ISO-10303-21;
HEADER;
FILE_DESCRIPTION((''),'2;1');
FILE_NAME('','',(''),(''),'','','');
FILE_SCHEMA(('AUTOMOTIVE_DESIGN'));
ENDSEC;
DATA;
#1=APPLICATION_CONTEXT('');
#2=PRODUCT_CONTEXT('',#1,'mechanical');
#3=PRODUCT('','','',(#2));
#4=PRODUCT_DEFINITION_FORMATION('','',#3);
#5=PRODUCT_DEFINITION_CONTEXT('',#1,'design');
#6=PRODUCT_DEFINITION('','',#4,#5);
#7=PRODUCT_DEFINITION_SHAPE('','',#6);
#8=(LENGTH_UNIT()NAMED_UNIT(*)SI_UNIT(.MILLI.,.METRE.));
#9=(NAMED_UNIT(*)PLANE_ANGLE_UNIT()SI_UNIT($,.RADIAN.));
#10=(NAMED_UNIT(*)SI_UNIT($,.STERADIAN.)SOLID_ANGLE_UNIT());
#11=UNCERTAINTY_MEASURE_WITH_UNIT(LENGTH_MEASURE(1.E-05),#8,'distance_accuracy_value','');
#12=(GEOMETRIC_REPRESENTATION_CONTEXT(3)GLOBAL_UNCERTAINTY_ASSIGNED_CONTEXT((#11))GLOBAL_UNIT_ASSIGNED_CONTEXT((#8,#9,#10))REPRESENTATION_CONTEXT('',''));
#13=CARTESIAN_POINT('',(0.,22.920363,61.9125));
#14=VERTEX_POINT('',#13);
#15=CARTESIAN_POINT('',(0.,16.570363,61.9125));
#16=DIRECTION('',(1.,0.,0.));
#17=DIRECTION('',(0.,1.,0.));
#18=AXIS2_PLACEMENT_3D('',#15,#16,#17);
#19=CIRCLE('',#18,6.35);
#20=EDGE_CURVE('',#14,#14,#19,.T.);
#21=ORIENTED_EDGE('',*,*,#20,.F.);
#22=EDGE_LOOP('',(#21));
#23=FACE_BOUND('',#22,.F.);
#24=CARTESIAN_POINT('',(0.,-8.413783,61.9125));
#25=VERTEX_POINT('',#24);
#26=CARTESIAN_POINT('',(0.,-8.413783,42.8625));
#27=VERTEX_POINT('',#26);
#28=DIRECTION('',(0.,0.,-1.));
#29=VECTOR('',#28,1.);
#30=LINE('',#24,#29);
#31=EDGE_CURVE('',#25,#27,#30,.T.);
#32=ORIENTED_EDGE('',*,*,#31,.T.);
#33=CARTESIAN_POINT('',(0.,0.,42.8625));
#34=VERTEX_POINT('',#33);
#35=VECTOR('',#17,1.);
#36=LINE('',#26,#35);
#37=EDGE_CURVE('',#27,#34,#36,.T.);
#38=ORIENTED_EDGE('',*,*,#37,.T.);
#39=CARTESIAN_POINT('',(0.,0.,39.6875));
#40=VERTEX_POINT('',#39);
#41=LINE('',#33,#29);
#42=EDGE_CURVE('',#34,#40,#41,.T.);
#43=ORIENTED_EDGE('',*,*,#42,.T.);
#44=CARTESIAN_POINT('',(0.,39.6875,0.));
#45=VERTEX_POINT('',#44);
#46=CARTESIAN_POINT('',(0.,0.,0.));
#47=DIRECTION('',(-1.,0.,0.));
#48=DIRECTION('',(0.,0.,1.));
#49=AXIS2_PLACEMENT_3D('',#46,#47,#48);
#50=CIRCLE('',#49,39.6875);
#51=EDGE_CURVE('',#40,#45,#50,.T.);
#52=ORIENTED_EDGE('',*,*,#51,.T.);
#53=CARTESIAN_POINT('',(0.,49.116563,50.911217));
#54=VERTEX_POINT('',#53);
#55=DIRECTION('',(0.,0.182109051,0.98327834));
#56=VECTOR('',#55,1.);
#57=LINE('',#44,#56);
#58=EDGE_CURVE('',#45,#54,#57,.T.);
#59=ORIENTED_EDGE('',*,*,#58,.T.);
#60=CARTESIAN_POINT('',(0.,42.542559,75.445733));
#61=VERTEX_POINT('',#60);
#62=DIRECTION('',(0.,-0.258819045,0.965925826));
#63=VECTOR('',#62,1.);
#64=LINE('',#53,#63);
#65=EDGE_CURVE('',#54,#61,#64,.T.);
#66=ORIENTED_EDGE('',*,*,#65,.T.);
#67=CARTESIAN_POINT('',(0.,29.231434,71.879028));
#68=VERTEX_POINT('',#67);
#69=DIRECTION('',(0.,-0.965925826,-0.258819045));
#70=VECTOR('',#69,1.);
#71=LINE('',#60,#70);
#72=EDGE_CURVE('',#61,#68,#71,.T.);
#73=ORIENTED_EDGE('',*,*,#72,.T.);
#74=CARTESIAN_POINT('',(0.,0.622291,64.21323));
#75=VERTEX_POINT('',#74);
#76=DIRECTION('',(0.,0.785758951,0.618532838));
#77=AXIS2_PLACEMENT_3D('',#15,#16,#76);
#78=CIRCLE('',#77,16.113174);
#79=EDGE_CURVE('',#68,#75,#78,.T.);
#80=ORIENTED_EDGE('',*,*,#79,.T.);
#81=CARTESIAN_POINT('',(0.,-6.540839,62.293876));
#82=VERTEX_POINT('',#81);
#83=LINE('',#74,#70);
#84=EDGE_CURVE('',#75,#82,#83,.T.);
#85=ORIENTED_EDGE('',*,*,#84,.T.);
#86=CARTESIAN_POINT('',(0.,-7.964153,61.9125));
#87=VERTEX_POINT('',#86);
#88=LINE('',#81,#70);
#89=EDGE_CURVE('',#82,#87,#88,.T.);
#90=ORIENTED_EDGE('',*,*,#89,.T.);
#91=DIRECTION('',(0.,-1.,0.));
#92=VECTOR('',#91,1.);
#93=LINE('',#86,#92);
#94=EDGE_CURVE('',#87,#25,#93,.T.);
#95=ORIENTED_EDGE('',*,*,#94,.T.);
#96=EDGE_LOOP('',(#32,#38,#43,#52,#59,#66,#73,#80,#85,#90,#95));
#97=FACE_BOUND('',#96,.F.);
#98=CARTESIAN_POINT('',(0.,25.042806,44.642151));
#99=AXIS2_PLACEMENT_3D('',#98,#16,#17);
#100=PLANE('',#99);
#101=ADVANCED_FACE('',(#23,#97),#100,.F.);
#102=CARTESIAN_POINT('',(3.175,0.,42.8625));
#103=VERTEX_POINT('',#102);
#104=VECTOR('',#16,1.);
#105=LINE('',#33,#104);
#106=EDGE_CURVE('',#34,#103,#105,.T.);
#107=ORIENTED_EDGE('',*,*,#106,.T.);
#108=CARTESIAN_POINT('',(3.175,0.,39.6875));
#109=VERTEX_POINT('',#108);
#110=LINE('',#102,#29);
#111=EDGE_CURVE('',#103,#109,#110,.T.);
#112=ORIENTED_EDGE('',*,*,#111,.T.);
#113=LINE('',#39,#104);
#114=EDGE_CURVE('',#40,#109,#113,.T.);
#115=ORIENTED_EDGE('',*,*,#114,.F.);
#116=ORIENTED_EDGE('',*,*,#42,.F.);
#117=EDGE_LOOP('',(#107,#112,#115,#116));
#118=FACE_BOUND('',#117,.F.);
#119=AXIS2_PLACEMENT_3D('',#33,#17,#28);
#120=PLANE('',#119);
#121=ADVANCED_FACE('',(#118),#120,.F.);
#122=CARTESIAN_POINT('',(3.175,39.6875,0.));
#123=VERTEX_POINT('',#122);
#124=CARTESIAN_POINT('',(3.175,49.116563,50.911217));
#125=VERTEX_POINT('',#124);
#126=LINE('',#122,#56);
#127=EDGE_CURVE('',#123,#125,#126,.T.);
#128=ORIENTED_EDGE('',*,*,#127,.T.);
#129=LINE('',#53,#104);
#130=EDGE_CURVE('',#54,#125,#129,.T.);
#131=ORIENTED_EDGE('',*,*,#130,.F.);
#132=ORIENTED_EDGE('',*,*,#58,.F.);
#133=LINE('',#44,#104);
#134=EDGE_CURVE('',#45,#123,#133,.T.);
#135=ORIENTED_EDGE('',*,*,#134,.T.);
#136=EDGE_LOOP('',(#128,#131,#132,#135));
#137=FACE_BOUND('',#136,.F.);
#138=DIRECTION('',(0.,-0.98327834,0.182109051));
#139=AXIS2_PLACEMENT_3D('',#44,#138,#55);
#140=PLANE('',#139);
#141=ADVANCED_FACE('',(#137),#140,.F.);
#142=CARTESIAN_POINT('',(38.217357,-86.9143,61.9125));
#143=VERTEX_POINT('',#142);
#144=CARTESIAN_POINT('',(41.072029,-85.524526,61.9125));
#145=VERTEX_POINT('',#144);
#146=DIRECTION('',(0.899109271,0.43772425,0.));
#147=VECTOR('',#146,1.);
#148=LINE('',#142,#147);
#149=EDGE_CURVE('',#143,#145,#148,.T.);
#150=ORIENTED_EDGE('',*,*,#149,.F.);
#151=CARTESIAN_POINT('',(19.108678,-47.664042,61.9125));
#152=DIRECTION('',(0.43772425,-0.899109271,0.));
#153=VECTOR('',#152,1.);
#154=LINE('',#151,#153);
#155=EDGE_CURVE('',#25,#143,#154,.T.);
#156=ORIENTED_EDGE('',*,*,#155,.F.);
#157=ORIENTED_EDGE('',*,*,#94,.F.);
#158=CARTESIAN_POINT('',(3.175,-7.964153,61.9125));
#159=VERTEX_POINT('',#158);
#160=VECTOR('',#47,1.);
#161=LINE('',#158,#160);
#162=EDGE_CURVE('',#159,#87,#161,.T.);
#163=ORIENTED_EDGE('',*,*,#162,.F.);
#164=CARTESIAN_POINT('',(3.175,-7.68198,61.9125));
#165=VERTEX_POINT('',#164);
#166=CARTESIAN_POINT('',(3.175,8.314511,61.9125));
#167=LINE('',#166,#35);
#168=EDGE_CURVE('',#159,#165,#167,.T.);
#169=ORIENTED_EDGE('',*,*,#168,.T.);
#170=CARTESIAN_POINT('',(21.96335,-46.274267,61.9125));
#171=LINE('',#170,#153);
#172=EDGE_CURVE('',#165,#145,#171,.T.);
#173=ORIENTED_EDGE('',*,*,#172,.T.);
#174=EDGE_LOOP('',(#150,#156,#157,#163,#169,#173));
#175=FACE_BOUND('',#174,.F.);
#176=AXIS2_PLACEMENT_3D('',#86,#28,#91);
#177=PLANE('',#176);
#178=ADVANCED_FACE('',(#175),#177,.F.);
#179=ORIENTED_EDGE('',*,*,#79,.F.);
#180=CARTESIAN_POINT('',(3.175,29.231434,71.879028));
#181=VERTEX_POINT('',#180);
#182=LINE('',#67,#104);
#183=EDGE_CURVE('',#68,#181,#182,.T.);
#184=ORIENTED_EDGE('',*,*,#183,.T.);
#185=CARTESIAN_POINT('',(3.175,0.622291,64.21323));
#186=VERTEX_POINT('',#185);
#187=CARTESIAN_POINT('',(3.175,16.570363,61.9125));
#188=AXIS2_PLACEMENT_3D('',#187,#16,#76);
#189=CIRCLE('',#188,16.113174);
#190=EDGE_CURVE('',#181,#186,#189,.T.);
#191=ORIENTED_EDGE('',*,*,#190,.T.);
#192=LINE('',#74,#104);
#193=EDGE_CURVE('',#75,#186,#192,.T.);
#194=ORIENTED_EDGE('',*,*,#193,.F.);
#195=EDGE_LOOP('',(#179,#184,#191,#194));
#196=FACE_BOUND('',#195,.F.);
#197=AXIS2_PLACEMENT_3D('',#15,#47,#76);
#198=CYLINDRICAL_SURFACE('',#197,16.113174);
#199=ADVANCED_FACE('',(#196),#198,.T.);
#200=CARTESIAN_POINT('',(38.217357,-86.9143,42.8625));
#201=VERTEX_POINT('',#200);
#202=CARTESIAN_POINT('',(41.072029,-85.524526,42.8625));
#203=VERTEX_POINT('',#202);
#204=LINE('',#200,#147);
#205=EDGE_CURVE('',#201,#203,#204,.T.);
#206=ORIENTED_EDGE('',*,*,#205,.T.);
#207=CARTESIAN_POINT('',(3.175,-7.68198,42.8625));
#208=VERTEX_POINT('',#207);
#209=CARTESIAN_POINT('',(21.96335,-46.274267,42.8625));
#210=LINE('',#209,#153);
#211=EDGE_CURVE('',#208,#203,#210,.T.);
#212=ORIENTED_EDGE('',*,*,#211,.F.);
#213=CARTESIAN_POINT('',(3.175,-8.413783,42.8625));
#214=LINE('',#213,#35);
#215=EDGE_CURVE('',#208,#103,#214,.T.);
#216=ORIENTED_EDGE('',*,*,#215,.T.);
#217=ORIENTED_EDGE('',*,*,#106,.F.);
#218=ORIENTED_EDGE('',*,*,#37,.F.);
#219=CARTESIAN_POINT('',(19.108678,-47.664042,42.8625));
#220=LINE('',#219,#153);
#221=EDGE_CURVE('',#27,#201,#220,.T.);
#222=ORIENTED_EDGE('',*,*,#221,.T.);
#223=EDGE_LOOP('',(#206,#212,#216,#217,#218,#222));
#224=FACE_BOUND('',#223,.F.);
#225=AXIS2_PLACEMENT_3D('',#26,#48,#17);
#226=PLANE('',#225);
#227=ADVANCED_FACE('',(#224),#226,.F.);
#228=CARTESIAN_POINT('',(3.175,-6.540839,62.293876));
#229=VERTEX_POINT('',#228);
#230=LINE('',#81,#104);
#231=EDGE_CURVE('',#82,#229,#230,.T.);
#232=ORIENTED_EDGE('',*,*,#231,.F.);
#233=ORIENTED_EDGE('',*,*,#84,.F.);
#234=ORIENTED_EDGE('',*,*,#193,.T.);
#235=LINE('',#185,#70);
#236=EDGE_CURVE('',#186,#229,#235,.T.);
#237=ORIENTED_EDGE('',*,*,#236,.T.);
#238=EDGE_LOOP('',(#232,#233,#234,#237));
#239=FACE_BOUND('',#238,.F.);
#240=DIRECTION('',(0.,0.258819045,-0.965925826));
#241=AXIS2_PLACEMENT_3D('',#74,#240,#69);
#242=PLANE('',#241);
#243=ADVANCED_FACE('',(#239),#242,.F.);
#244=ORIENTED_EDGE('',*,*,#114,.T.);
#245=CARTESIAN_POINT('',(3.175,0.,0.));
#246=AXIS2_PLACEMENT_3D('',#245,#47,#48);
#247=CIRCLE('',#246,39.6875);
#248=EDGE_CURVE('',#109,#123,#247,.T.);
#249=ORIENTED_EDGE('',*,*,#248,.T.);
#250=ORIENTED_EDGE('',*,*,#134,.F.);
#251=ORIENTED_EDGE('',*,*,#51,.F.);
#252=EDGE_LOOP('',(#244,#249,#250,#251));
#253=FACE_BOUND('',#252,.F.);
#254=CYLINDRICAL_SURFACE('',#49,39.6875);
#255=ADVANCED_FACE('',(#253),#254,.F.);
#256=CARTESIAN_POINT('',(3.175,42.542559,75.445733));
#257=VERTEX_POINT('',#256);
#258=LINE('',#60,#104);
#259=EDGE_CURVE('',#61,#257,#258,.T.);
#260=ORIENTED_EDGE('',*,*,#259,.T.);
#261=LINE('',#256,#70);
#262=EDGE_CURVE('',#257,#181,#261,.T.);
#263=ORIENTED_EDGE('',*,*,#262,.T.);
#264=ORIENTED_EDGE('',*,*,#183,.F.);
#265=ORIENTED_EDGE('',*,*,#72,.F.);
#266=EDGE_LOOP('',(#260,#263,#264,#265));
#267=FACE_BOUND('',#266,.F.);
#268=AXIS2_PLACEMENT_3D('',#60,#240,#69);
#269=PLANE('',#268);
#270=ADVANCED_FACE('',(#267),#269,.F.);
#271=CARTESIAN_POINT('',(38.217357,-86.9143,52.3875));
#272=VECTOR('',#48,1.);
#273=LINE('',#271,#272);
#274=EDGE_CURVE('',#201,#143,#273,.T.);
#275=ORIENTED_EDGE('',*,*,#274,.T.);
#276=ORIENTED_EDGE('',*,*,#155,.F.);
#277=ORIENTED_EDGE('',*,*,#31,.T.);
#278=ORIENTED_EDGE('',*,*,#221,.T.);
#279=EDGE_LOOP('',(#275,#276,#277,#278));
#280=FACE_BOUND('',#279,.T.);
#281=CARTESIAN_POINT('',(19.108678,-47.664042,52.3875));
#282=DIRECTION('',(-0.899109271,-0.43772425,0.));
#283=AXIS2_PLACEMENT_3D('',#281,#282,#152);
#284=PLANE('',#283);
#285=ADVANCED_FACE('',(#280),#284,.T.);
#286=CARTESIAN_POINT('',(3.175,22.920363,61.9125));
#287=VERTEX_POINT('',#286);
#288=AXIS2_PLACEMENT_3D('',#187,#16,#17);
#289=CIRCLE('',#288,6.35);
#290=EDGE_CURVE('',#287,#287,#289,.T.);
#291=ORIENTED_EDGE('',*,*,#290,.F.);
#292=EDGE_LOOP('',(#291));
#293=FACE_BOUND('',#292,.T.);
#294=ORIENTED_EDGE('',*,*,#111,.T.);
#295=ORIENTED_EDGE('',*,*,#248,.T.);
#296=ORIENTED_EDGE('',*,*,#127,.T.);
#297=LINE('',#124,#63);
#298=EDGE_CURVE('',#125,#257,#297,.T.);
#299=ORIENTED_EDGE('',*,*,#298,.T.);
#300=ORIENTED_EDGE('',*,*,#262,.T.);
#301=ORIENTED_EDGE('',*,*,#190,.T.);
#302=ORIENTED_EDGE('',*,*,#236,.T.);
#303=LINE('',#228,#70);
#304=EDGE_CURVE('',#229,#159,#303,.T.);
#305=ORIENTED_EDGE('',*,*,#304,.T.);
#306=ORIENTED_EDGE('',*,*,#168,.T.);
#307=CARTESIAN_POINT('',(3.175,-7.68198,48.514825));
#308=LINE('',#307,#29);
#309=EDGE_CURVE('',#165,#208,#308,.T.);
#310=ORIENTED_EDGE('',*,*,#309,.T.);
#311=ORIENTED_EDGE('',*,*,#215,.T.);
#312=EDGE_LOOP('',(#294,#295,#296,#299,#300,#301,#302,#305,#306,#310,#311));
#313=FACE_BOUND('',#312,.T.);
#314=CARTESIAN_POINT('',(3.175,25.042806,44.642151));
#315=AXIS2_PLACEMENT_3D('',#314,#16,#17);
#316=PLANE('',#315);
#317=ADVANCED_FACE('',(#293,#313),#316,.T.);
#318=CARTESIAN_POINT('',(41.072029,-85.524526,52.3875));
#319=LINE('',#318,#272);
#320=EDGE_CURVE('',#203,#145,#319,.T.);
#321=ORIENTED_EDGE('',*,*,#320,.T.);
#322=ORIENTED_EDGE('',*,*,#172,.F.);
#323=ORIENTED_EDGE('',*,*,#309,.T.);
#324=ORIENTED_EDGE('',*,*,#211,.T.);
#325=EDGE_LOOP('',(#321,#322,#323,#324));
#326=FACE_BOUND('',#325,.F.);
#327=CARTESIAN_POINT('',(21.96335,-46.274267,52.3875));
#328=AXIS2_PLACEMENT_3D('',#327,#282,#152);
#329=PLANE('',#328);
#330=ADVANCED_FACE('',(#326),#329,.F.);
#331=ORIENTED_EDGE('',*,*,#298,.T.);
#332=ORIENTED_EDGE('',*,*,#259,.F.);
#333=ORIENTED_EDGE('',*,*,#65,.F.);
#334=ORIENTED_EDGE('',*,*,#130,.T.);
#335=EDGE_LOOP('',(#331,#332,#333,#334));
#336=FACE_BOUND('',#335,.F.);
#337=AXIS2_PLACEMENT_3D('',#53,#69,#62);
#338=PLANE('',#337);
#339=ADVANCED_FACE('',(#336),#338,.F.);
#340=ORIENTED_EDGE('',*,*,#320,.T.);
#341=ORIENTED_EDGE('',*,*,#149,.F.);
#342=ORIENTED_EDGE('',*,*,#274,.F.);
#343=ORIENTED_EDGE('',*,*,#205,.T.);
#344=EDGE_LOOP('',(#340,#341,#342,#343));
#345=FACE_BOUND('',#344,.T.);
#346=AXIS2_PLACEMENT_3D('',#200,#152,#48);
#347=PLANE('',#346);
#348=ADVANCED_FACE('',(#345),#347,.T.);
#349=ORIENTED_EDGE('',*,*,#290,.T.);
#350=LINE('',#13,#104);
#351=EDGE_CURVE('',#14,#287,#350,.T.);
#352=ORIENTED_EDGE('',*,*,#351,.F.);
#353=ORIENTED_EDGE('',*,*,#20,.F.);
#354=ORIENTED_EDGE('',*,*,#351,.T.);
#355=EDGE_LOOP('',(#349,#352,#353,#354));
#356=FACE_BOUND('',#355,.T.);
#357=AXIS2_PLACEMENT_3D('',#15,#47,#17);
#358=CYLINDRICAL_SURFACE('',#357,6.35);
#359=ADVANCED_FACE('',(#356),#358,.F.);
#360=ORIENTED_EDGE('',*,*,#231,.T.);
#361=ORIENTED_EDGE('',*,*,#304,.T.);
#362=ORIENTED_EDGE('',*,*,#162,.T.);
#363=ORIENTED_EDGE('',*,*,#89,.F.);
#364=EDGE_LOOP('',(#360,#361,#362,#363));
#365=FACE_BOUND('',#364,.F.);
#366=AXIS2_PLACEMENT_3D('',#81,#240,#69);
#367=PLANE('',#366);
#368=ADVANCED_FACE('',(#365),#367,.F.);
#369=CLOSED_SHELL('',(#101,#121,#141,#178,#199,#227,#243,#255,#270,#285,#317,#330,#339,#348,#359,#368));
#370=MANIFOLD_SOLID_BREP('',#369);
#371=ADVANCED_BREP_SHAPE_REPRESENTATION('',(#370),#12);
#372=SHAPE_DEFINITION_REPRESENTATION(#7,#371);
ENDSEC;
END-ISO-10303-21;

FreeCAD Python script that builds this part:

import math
import FreeCAD as App
import Part
import Sketcher
from FreeCAD import Vector
Q = App.Units.Quantity

doc = App.newDocument("Part")
body = doc.addObject("PartDesign::Body", "Body")

sketch1 = doc.addObject("Sketcher::SketchObject", "Sketch")
body.addObject(sketch1)
sketch1.AttachmentSupport = (doc.YZ_Plane, [""])
sketch1.MapMode = "FlatFace"
sketch1.addGeometry([
    Part.LineSegment(Vector(0.62, 64.21, 0), Vector(-6.54, 62.29, 0)),
    Part.LineSegment(Vector(-6.54, 62.29, 0), Vector(-7.96, 61.91, 0)),
    Part.LineSegment(Vector(-7.96, 61.91, 0), Vector(-8.41, 61.91, 0)),
    Part.LineSegment(Vector(-8.41, 61.91, 0), Vector(-8.41, 42.86, 0)),
    Part.LineSegment(Vector(-8.41, 42.86, 0), Vector(0, 42.86, 0)),
    Part.LineSegment(Vector(0, 42.86, 0), Vector(0, 39.69, 0)),
    Part.ArcOfCircle(Part.Circle(Vector(0, 0, 0), Vector(0, 0, 1), 39.69), math.radians(0), math.radians(90)),
    Part.LineSegment(Vector(39.69, 0, 0), Vector(49.12, 50.91, 0)),
    Part.LineSegment(Vector(49.12, 50.91, 0), Vector(42.54, 75.45, 0)),
    Part.LineSegment(Vector(42.54, 75.45, 0), Vector(29.23, 71.88, 0)),
    Part.ArcOfCircle(Part.Circle(Vector(16.57, 61.91, 0), Vector(0, 0, 1), 16.11), math.radians(38), math.radians(172)),
    Part.Circle(Vector(16.57, 61.91, 0), Vector(0, 0, 1), 6.35),
], False)
sketch1.addConstraint([
    Sketcher.Constraint("Coincident", 0, 2, 1, 1),
    Sketcher.Constraint("Coincident", 1, 2, 2, 1),
    Sketcher.Constraint("Coincident", 2, 2, 3, 1),
    Sketcher.Constraint("Coincident", 3, 2, 4, 1),
    Sketcher.Constraint("Coincident", 4, 2, 5, 1),
    Sketcher.Constraint("Coincident", 5, 2, 6, 2),
    Sketcher.Constraint("Coincident", 6, 1, 7, 1),
    Sketcher.Constraint("Coincident", 7, 2, 8, 1),
    Sketcher.Constraint("Coincident", 8, 2, 9, 1),
    Sketcher.Constraint("Coincident", 9, 2, 10, 1),
    Sketcher.Constraint("Coincident", 10, 2, 0, 1),
    Sketcher.Constraint("Horizontal", 2),
    Sketcher.Constraint("Vertical", 3),
    Sketcher.Constraint("Horizontal", 4),
    Sketcher.Constraint("Vertical", 5),
    Sketcher.Constraint("Coincident", 6, 3, -1, 1),
    Sketcher.Constraint("Coincident", 11, 3, 10, 3),
    Sketcher.Constraint("PointOnObject", 4, 2, -2),
    Sketcher.Constraint("PointOnObject", 6, 1, -1),
    Sketcher.Constraint("Parallel", 0, 1),
    Sketcher.Constraint("Perpendicular", 1, 8),
    Sketcher.Constraint("Perpendicular", 8, 9),
    Sketcher.Constraint("Horizontal", 11, 3, 1, 2),
    Sketcher.Constraint("Diameter", 11, Q("0.5 in")),
    Sketcher.Constraint("Distance", 8, Q("1 in")),
    Sketcher.Constraint("Angle", 0, Q("-165 deg")),
    Sketcher.Constraint("Radius", 6, Q("1.5625 in")),
    Sketcher.Constraint("DistanceY", 3, 2, 3, 1, Q("0.75 in")),
    Sketcher.Constraint("DistanceY", 5, 2, 5, 1, Q("0.125 in")),
    Sketcher.Constraint("Radius", 10, 16.113174),
    Sketcher.Constraint("DistanceX", 2, 2, 2, 1, 0.449631),
    Sketcher.Constraint("DistanceX", 10, 3, 7, 2, 32.546199),
    Sketcher.Constraint("DistanceX", 0, 2, 8, 2, 49.083398),
    Sketcher.Constraint("Distance", 9, 13.78069),
    Sketcher.Constraint("DistanceX", 4, 1, 4, 2, 8.413783),
    Sketcher.Constraint("DistanceX", 0, 2, -1, 1, 6.540839),
])
pad1 = doc.addObject("PartDesign::Pad", "Pad")
body.addObject(pad1)
pad1.Profile = sketch1
pad1.Length = Q("0.125 in")

sketch2 = doc.addObject("Sketcher::SketchObject", "Sketch001")
body.addObject(sketch2)
sketch2.Placement = App.Placement(Vector(-3.311345, -1.612102, 0), App.Rotation(Vector(0.43772425, -0.899109271, 0), Vector(0, 0, 1), Vector(-0.899109271, -0.43772425, 0), "ZXY"))
sketch2.addGeometry([
    Part.LineSegment(Vector(8, 62, 0), Vector(8, 43, 0)),
    Part.LineSegment(Vector(8, 43, 0), Vector(95, 43, 0)),
    Part.LineSegment(Vector(95, 43, 0), Vector(95, 62, 0)),
    Part.LineSegment(Vector(95, 62, 0), Vector(8, 62, 0)),
], False)
sketch2.addConstraint([
    Sketcher.Constraint("Coincident", 0, 2, 1, 1),
    Sketcher.Constraint("Coincident", 1, 2, 2, 1),
    Sketcher.Constraint("Coincident", 2, 2, 3, 1),
    Sketcher.Constraint("Coincident", 3, 2, 0, 1),
    Sketcher.Constraint("Vertical", 0),
    Sketcher.Constraint("Horizontal", 1),
    Sketcher.Constraint("Vertical", 2),
    Sketcher.Constraint("Horizontal", 3),
    Sketcher.Constraint("DistanceY", 0, 2, 0, 1, Q("0.75 in")),
    Sketcher.Constraint("DistanceY", -1, 1, 0, 2, Q("1.6875 in")),
    Sketcher.Constraint("DistanceX", 1, 1, 1, 2, 87.309206),
    Sketcher.Constraint("DistanceX", -1, 1, 0, 2, 7.564911),
])
pad2 = doc.addObject("PartDesign::Pad", "Pad001")
body.addObject(pad2)
pad2.Profile = sketch2
pad2.Length = Q("0.125 in")
pad2.Reversed = True

doc.recompute()
